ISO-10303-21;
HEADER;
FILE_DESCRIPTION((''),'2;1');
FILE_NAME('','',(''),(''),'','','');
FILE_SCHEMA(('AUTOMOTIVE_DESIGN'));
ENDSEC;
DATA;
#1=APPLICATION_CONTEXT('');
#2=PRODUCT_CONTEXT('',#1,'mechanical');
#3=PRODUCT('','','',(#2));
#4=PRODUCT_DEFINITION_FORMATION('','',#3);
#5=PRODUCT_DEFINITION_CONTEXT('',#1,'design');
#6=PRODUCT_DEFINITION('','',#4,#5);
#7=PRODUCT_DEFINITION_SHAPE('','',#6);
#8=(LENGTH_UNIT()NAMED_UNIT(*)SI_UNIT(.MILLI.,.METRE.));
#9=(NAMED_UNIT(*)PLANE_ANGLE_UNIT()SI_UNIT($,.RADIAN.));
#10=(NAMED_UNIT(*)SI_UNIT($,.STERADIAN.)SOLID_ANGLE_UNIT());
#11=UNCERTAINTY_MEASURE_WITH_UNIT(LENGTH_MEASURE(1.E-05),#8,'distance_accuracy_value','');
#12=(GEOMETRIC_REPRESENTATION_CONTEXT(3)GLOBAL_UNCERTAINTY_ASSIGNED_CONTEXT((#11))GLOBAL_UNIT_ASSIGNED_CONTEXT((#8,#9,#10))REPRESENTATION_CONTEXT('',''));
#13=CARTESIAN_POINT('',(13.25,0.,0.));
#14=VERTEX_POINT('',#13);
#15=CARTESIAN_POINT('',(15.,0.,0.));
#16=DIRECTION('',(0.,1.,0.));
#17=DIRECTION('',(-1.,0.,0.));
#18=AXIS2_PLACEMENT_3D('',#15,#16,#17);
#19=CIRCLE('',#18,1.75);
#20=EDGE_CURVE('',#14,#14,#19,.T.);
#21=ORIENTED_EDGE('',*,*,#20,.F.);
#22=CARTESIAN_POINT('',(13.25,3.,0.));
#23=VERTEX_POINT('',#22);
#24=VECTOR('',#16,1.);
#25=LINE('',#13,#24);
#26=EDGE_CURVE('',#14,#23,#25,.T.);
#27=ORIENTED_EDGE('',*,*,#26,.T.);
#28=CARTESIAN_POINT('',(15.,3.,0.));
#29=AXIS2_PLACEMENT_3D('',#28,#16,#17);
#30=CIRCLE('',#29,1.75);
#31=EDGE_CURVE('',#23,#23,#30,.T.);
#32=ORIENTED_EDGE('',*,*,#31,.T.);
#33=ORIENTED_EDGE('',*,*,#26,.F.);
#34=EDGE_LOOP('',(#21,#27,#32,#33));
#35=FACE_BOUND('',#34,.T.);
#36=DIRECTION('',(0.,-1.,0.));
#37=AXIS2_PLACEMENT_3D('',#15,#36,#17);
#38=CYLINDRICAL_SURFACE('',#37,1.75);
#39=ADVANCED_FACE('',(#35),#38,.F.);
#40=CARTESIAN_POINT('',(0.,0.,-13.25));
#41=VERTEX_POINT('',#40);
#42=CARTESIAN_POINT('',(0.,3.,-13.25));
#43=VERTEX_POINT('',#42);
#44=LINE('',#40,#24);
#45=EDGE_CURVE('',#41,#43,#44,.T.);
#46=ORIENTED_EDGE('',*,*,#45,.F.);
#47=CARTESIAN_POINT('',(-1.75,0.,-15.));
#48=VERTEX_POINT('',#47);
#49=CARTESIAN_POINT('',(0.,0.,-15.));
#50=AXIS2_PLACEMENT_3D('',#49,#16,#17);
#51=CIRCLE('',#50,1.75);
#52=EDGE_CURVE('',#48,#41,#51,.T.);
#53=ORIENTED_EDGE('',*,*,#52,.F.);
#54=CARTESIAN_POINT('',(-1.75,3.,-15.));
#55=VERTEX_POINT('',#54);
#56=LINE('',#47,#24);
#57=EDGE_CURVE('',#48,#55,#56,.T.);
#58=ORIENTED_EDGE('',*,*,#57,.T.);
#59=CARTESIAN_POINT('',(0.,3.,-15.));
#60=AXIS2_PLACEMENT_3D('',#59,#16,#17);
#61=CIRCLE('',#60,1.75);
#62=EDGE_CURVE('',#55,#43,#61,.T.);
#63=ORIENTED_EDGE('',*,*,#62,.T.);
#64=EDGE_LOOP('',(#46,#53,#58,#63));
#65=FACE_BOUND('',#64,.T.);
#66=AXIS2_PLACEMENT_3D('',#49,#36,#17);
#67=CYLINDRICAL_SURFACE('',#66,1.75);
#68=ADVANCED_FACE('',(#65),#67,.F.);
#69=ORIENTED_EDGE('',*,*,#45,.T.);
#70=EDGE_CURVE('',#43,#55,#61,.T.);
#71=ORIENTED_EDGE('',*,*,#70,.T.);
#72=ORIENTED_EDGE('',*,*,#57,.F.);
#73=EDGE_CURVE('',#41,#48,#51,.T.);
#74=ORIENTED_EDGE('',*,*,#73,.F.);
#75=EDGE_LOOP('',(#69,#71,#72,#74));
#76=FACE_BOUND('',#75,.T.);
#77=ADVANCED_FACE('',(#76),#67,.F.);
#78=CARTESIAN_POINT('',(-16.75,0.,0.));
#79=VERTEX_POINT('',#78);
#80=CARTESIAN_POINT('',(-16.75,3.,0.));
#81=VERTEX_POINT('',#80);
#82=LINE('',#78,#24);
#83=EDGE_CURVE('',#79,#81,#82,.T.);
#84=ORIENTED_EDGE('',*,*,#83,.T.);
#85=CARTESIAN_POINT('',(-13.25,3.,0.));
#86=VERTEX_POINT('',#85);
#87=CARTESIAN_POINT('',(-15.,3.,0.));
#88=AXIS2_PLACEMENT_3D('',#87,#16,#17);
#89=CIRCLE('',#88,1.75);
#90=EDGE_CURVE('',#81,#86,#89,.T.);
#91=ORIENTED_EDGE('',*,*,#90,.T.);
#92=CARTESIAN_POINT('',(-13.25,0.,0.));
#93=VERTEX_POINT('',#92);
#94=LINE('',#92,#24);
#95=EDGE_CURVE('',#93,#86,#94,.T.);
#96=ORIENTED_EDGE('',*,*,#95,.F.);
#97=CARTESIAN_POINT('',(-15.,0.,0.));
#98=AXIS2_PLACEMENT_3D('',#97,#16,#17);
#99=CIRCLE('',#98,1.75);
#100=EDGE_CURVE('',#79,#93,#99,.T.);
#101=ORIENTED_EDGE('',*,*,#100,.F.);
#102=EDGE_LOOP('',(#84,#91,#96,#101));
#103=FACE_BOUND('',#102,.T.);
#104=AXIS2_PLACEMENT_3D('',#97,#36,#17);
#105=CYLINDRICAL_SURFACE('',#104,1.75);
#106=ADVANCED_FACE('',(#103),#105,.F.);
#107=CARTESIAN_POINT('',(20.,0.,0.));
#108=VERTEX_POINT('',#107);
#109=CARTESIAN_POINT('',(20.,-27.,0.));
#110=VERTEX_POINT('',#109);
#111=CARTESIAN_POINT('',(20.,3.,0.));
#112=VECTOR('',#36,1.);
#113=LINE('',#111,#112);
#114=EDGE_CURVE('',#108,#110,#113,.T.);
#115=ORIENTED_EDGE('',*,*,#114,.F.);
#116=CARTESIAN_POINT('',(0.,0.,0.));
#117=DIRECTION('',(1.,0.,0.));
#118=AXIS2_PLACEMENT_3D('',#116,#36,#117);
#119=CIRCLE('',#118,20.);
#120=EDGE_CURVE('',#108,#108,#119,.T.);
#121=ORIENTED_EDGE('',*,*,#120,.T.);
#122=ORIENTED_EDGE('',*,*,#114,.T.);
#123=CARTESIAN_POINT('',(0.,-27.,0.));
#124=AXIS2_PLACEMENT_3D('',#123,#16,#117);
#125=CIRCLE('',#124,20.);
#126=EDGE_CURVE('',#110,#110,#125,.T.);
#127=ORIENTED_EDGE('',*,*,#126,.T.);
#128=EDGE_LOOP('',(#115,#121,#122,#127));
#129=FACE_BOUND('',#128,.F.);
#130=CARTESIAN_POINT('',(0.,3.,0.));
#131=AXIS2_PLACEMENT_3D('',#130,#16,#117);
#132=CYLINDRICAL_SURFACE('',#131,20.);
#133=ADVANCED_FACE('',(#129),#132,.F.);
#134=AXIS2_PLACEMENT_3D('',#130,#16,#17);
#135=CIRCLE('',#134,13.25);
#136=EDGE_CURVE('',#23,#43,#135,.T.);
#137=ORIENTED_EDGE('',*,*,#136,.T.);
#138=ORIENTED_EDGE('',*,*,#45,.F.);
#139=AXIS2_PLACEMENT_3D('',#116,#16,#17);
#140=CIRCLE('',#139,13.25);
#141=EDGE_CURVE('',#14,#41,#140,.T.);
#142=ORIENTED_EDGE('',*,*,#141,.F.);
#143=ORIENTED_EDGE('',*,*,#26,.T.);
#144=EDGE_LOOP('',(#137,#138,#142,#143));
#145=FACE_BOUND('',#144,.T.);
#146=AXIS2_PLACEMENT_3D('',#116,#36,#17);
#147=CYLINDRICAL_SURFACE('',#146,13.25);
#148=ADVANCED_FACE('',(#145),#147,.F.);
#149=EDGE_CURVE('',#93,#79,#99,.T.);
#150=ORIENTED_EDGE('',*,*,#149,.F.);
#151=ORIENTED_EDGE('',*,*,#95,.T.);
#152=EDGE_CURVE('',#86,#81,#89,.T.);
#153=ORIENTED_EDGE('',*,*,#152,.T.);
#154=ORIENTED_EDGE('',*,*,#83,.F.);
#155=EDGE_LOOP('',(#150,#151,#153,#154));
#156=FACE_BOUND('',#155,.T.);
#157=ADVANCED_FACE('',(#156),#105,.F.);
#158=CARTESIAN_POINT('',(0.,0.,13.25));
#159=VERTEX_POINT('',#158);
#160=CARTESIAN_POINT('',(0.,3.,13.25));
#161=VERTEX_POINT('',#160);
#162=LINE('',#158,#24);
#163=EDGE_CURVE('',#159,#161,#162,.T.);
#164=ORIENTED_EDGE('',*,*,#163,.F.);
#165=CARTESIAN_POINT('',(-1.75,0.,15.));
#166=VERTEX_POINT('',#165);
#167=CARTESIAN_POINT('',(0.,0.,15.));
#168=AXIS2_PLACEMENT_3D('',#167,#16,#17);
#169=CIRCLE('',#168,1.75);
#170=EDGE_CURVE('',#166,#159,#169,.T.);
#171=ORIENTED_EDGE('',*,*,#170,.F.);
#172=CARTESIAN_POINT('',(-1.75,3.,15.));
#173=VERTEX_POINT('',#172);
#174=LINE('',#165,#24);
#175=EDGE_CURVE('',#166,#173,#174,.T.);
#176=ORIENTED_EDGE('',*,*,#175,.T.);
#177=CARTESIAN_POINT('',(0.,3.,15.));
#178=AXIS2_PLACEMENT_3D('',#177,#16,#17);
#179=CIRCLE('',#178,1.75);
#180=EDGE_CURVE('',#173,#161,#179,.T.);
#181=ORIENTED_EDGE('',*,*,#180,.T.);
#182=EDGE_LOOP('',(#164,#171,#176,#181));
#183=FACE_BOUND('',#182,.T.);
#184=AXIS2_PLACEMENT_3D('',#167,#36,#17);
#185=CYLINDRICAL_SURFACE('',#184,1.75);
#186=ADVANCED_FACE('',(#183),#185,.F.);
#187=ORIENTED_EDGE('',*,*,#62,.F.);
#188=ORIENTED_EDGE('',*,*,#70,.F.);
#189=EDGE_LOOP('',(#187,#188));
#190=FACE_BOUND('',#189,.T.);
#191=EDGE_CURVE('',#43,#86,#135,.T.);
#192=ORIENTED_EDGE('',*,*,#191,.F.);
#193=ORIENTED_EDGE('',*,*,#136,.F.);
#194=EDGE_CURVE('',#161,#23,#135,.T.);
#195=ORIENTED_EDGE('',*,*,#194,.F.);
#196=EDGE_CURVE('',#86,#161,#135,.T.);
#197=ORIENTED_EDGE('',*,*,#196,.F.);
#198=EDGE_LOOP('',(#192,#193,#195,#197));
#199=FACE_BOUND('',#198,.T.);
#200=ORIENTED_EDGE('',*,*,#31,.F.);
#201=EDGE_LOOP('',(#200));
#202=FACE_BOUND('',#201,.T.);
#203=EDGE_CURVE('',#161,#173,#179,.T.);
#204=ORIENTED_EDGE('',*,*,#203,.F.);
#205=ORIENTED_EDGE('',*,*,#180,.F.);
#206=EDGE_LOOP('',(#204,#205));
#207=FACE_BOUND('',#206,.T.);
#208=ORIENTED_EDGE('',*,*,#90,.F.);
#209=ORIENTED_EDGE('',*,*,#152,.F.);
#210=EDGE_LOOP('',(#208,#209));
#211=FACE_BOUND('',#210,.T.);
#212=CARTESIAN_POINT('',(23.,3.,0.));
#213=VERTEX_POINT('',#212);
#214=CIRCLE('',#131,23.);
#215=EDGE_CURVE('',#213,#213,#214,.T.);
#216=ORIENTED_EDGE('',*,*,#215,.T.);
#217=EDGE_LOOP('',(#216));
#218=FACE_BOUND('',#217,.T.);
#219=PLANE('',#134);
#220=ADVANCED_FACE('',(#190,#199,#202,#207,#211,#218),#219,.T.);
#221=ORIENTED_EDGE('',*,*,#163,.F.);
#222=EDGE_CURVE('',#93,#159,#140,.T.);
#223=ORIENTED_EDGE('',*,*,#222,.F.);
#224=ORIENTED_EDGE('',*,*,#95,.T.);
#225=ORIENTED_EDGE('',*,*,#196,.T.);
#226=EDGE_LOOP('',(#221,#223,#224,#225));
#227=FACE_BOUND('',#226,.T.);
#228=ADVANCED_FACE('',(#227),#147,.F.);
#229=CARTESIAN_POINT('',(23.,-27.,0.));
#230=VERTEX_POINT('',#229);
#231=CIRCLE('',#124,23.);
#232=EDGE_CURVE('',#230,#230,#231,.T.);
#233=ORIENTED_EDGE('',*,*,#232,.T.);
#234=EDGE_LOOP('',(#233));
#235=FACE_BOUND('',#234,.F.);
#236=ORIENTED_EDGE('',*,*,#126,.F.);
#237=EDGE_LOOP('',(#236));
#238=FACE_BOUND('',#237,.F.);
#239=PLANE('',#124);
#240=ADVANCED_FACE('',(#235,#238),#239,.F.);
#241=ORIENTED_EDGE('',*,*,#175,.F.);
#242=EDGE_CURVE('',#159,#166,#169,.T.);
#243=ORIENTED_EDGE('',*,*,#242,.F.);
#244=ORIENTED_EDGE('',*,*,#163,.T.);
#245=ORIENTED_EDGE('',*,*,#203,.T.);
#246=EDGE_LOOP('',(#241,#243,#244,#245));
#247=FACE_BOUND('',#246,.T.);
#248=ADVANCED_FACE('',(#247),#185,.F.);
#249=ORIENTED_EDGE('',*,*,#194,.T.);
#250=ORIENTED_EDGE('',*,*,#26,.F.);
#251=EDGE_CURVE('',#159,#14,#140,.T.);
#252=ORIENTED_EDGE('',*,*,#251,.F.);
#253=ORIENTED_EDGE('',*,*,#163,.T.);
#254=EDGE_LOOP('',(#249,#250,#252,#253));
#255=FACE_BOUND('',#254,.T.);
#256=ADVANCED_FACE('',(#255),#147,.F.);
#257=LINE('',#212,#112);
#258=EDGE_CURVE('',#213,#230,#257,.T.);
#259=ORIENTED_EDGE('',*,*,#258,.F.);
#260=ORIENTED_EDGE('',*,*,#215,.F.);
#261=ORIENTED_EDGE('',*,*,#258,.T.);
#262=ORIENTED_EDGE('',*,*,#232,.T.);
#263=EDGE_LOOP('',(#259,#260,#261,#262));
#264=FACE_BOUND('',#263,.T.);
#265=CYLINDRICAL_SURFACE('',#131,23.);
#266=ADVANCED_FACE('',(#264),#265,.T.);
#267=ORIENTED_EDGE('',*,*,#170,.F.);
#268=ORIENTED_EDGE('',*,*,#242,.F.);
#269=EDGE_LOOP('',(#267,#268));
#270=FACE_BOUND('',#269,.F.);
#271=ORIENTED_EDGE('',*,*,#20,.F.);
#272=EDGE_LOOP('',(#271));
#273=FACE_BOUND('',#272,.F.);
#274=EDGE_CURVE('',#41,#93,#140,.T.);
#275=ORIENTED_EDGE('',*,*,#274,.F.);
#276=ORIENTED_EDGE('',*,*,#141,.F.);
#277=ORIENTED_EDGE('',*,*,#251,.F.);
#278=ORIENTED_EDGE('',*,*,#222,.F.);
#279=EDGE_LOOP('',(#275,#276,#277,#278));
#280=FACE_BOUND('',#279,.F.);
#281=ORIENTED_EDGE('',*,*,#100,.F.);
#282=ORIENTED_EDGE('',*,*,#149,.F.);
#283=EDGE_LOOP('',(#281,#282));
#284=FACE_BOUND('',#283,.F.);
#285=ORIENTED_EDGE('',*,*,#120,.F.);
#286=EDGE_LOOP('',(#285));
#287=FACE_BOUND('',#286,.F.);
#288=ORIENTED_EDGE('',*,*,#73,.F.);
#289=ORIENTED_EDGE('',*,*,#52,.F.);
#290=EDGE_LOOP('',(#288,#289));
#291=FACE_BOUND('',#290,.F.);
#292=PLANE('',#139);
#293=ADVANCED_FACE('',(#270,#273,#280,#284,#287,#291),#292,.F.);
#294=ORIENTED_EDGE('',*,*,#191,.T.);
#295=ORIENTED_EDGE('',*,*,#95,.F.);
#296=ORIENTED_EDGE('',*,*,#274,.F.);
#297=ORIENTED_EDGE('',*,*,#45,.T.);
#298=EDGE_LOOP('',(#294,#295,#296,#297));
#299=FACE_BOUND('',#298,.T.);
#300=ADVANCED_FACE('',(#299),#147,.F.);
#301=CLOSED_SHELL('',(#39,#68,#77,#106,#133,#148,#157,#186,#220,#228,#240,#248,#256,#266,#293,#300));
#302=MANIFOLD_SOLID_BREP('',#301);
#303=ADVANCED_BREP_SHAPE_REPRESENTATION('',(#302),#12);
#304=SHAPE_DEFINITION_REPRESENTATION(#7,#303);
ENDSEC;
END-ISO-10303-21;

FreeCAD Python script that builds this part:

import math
import FreeCAD as App
import Part
import Sketcher

doc = App.newDocument("Part")
params = doc.addObject("Spreadsheet::Sheet", "Params")
for row, (alias, value) in enumerate([
    ("sketch1_diameter", "40 mm"),
    ("sketch1_diameter2", "3.5 mm"),
    ("sketch1_radius", "13.25 mm"),
    ("pad1_length", "3 mm"),
    ("sketch2_diameter", "46 mm"),
    ("sketch2_diameter2", "40 mm"),
    ("pad2_length", "30 mm"),
], start=1):
    params.set(f"A{row}", alias)
    params.set(f"B{row}", "=" + value)
    params.setAlias(f"B{row}", alias)

body = doc.addObject("PartDesign::Body", "Body")

sketch1 = doc.addObject("Sketcher::SketchObject", "Sketch")
body.addObject(sketch1)
sketch1.AttachmentSupport = (doc.XZ_Plane, [""])
sketch1.MapMode = "FlatFace"
sketch1.addGeometry(Part.Circle(App.Vector(0, 0, 0), App.Vector(0, 0, 1), 20), False)
sketch1.addGeometry(Part.Circle(App.Vector(0, -15, 0), App.Vector(0, 0, 1), 1.75), False)
sketch1.addGeometry(Part.Circle(App.Vector(15, 0, 0), App.Vector(0, 0, 1), 1.75), False)
sketch1.addGeometry(Part.ArcOfCircle(Part.Circle(App.Vector(0, 0, 0), App.Vector(0, 0, 1), 13.25), math.radians(180), math.radians(270)), False)
sketch1.addGeometry(Part.ArcOfCircle(Part.Circle(App.Vector(0, 0, 0), App.Vector(0, 0, 1), 13.25), math.radians(-90), math.radians(0)), False)
sketch1.addGeometry(Part.ArcOfCircle(Part.Circle(App.Vector(0, 0, 0), App.Vector(0, 0, 1), 13.25), math.radians(0), math.radians(90)), False)
sketch1.addGeometry(Part.ArcOfCircle(Part.Circle(App.Vector(0, 0, 0), App.Vector(0, 0, 1), 13.25), math.radians(90), math.radians(180)), False)
sketch1.addGeometry(Part.Circle(App.Vector(-15, 0, 0), App.Vector(0, 0, 1), 1.75), False)
sketch1.addGeometry(Part.Circle(App.Vector(0, 15, 0), App.Vector(0, 0, 1), 1.75), False)
sketch1.addConstraint(Sketcher.Constraint("Tangent", 3, 2, 4, 1))
sketch1.addConstraint(Sketcher.Constraint("Tangent", 4, 2, 5, 1))
sketch1.addConstraint(Sketcher.Constraint("Tangent", 5, 2, 6, 1))
sketch1.addConstraint(Sketcher.Constraint("Tangent", 6, 2, 3, 1))
sketch1.addConstraint(Sketcher.Constraint("Coincident", 0, 3, -1, 1))
sketch1.addConstraint(Sketcher.Constraint("Coincident", 3, 3, -1, 1))
sketch1.addConstraint(Sketcher.Constraint("Equal", 1, 2))
sketch1.addConstraint(Sketcher.Constraint("Equal", 3, 4))
sketch1.addConstraint(Sketcher.Constraint("Equal", 2, 7))
sketch1.addConstraint(Sketcher.Constraint("Equal", 7, 8))
sketch1.addConstraint(Sketcher.Constraint("Symmetric", 2, 3, 7, 3, -1, 1))
sketch1.addConstraint(Sketcher.Constraint("Symmetric", 1, 3, 8, 3, -1, 1))
sketch1.addConstraint(Sketcher.Constraint("PointOnObject", 1, 3, -2))
sketch1.addConstraint(Sketcher.Constraint("PointOnObject", 2, 3, -1))
sketch1.addConstraint(Sketcher.Constraint("PointOnObject", 3, 2, -2))
sketch1.addConstraint(Sketcher.Constraint("PointOnObject", 4, 2, -1))
sketch1.addConstraint(Sketcher.Constraint("PointOnObject", 5, 2, -2))
sketch1.addConstraint(Sketcher.Constraint("PointOnObject", 6, 2, -1))
sketch1.addConstraint(Sketcher.Constraint("Diameter", 0, 40.0))
sketch1.addConstraint(Sketcher.Constraint("Diameter", 1, 3.5))
sketch1.addConstraint(Sketcher.Constraint("Radius", 3, 13.25))
sketch1.addConstraint(Sketcher.Constraint("DistanceY", 1, 3, -1, 1, 15.0))
sketch1.addConstraint(Sketcher.Constraint("DistanceX", -1, 1, 2, 3, 15.0))
sketch1.setExpression("Constraints[18]", "Params.sketch1_diameter")
sketch1.setExpression("Constraints[19]", "Params.sketch1_diameter2")
sketch1.setExpression("Constraints[20]", "Params.sketch1_radius")
pad1 = doc.addObject("PartDesign::Pad", "Pad")
body.addObject(pad1)
pad1.Profile = sketch1
pad1.setExpression("Length", "Params.pad1_length")
pad1.Reversed = True

sketch2 = doc.addObject("Sketcher::SketchObject", "Sketch001")
body.addObject(sketch2)
sketch2.AttachmentSupport = (doc.XZ_Plane, [""])
sketch2.MapMode = "FlatFace"
sketch2.AttachmentOffset = App.Placement(App.Vector(0, 0, -3), App.Rotation())
sketch2.addGeometry(Part.Circle(App.Vector(0, 0, 0), App.Vector(0, 0, 1), 23), False)
sketch2.addGeometry(Part.Circle(App.Vector(0, 0, 0), App.Vector(0, 0, 1), 20), False)
sketch2.addConstraint(Sketcher.Constraint("Coincident", 0, 3, -1, 1))
sketch2.addConstraint(Sketcher.Constraint("Coincident", 1, 3, -1, 1))
sketch2.addConstraint(Sketcher.Constraint("Diameter", 0, 46.0))
sketch2.addConstraint(Sketcher.Constraint("Diameter", 1, 40.0))
sketch2.setExpression("Constraints[2]", "Params.sketch2_diameter")
sketch2.setExpression("Constraints[3]", "Params.sketch2_diameter2")
pad2 = doc.addObject("PartDesign::Pad", "Pad001")
body.addObject(pad2)
pad2.Profile = sketch2
pad2.setExpression("Length", "Params.pad2_length")

doc.recompute()
